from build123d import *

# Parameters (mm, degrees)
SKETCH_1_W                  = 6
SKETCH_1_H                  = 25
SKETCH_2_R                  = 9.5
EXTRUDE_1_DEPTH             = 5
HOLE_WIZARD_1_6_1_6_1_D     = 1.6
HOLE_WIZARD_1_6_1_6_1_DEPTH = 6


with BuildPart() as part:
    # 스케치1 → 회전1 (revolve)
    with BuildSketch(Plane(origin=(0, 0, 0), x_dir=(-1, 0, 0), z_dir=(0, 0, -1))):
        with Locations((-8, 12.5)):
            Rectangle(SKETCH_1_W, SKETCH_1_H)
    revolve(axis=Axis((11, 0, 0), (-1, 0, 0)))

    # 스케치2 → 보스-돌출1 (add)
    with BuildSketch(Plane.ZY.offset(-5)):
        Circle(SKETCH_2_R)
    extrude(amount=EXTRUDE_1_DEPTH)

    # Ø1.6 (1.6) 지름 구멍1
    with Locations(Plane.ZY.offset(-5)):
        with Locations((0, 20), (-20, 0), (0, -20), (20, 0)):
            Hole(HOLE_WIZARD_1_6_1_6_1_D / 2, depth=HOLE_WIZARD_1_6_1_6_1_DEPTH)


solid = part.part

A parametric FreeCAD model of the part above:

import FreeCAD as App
import Part
import Sketcher

V = App.Vector


def add_polygon(sketch, points):
    """Adds a closed chain of lines whose ends are joined by coincident constraints."""
    first, n = sketch.GeometryCount, len(points)
    for a, b in zip(points, points[1:] + points[:1]):
        sketch.addGeometry(Part.LineSegment(App.Vector(*a, 0), App.Vector(*b, 0)), False)
    for i in range(n):
        sketch.addConstraint(Sketcher.Constraint("Coincident", first + i, 2, first + (i + 1) % n, 1))

doc = App.newDocument("Part")
body = doc.addObject("PartDesign::Body", "Body")

sketch1 = body.newObject("Sketcher::SketchObject", "Sketch")
sketch1.AttachmentSupport = (doc.getObject("XY_Plane"), [""])
sketch1.MapMode = "FlatFace"
add_polygon(sketch1, [(11, 25), (11, 0), (5, 0), (5, 25)])
sketch1.addConstraint(Sketcher.Constraint("Vertical", 0))
sketch1.addConstraint(Sketcher.Constraint("Horizontal", 1))
sketch1.addConstraint(Sketcher.Constraint("Vertical", 2))
sketch1.addConstraint(Sketcher.Constraint("Horizontal", 3))
sketch1.addConstraint(Sketcher.Constraint("PointOnObject", 0, 2, -1))
sketch1.addConstraint(Sketcher.Constraint("DistanceX", 1, 2, 1, 1, 6.0))
sketch1.addConstraint(Sketcher.Constraint("DistanceY", 0, 2, 0, 1, 25.0))
sketch1.addConstraint(Sketcher.Constraint("DistanceX", -1, 1, 0, 2, 11.0))
revolution = body.newObject("PartDesign::Revolution", "Revolution")
revolution.Profile = sketch1
revolution.ReferenceAxis = (sketch1, ["H_Axis"])
revolution.Angle = 360

sketch2 = body.newObject("Sketcher::SketchObject", "Sketch001")
sketch2.AttachmentSupport = (doc.getObject("YZ_Plane"), [""])
sketch2.MapMode = "FlatFace"
sketch2.AttachmentOffset = App.Placement(V(0, 0, 5), App.Rotation())
sketch2.addGeometry(Part.Circle(V(0, 0, 0), V(0, 0, 1), 10), False)
sketch2.addConstraint(Sketcher.Constraint("Coincident", 0, 3, -1, 1))
sketch2.addConstraint(Sketcher.Constraint("Diameter", 0, 19.0))
pad1 = body.newObject("PartDesign::Pad", "Pad")
pad1.Profile = sketch2
pad1.Length = 5
pad1.Reversed = True

sketch3 = body.newObject("Sketcher::SketchObject", "Sketch002")
sketch3.AttachmentSupport = (doc.getObject("YZ_Plane"), [""])
sketch3.MapMode = "FlatFace"
sketch3.AttachmentOffset = App.Placement(V(0, 0, 5), App.Rotation())
sketch3.addGeometry(Part.Circle(V(20, 0, 0), V(0, 0, 1), 0.8), False)
sketch3.addGeometry(Part.Circle(V(0, -20, 0), V(0, 0, 1), 0.8), False)
sketch3.addGeometry(Part.Circle(V(-20, 0, 0), V(0, 0, 1), 0.8), False)
sketch3.addGeometry(Part.Circle(V(0, 20, 0), V(0, 0, 1), 0.8), False)
sketch3.addConstraint(Sketcher.Constraint("Equal", 0, 1))
sketch3.addConstraint(Sketcher.Constraint("Equal", 1, 2))
sketch3.addConstraint(Sketcher.Constraint("Equal", 2, 3))
sketch3.addConstraint(Sketcher.Constraint("Symmetric", 0, 3, 2, 3, -1, 1))
sketch3.addConstraint(Sketcher.Constraint("Symmetric", 1, 3, 3, 3, -1, 1))
sketch3.addConstraint(Sketcher.Constraint("PointOnObject", 0, 3, -1))
sketch3.addConstraint(Sketcher.Constraint("PointOnObject", 1, 3, -2))
sketch3.addConstraint(Sketcher.Constraint("Diameter", 0, 1.6))
sketch3.addConstraint(Sketcher.Constraint("DistanceX", -1, 1, 0, 3, 20.0))
sketch3.addConstraint(Sketcher.Constraint("DistanceY", 1, 3, -1, 1, 20.0))
doc.recompute()
hole = body.newObject("PartDesign::Hole", "Hole")
hole.Profile = sketch3
hole.ThreadType = "None"
hole.Diameter = 1.6
hole.DepthType = "Dimension"
hole.Depth = 6
hole.DrillPoint = "Flat"
hole.Reversed = True

doc.recompute()
